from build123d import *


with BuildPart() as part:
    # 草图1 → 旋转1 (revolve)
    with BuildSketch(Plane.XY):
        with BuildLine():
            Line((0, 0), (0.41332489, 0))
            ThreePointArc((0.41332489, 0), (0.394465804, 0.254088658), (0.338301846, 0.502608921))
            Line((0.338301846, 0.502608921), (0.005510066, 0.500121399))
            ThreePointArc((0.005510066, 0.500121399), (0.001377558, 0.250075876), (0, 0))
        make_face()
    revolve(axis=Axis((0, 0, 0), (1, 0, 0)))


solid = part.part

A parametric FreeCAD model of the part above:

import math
import FreeCAD as App
import Part
import Sketcher

V = App.Vector
Q = App.Units.Quantity

doc = App.newDocument("Part")
body = doc.addObject("PartDesign::Body", "Body")

sketch1 = body.newObject("Sketcher::SketchObject", "Sketch")
sketch1.AttachmentSupport = (doc.getObject("XY_Plane"), [""])
sketch1.MapMode = "FlatFace"
sketch1.addGeometry([
    Part.LineSegment(V(0, 0, 0), V(0.413325, 0, 0)),
    Part.ArcOfCircle(Part.Circle(V(-1.307774, 0, 0), V(0, 0, 1), 1.721099), math.radians(0), math.radians(16.979401)),
    Part.LineSegment(V(0.338302, 0.502609, 0), V(0.00551, 0.500121, 0)),
    Part.ArcOfCircle(Part.Circle(V(22.699521, 0, 0), V(0, 0, 1), 22.699521), math.radians(178.737543), math.radians(180)),
], False)
sketch1.addConstraint([
    Sketcher.Constraint("Coincident", 0, 2, 1, 1),
    Sketcher.Constraint("Coincident", 1, 2, 2, 1),
    Sketcher.Constraint("Coincident", 2, 2, 3, 1),
    Sketcher.Constraint("Coincident", 3, 2, 0, 1),
    Sketcher.Constraint("Horizontal", 0),
    Sketcher.Constraint("Coincident", 3, 2, -1, 1),
    Sketcher.Constraint("PointOnObject", 1, 3, -1),
    Sketcher.Constraint("PointOnObject", 3, 3, -1),
    Sketcher.Constraint("Radius", 1, Q("1.721099 mm")),
    Sketcher.Constraint("Radius", 3, Q("22.699521 mm")),
    Sketcher.Constraint("Distance", 2, Q("0.332801 mm")),
    Sketcher.Constraint("DistanceX", -1, 1, 1, 2, Q("0.338302 mm")),
    Sketcher.Constraint("DistanceX", 0, 1, 0, 2, Q("0.413325 mm")),
])
revolution = body.newObject("PartDesign::Revolution", "Revolution")
revolution.Profile = sketch1
revolution.ReferenceAxis = (sketch1, ["H_Axis"])
revolution.Angle = 360

doc.recompute()
